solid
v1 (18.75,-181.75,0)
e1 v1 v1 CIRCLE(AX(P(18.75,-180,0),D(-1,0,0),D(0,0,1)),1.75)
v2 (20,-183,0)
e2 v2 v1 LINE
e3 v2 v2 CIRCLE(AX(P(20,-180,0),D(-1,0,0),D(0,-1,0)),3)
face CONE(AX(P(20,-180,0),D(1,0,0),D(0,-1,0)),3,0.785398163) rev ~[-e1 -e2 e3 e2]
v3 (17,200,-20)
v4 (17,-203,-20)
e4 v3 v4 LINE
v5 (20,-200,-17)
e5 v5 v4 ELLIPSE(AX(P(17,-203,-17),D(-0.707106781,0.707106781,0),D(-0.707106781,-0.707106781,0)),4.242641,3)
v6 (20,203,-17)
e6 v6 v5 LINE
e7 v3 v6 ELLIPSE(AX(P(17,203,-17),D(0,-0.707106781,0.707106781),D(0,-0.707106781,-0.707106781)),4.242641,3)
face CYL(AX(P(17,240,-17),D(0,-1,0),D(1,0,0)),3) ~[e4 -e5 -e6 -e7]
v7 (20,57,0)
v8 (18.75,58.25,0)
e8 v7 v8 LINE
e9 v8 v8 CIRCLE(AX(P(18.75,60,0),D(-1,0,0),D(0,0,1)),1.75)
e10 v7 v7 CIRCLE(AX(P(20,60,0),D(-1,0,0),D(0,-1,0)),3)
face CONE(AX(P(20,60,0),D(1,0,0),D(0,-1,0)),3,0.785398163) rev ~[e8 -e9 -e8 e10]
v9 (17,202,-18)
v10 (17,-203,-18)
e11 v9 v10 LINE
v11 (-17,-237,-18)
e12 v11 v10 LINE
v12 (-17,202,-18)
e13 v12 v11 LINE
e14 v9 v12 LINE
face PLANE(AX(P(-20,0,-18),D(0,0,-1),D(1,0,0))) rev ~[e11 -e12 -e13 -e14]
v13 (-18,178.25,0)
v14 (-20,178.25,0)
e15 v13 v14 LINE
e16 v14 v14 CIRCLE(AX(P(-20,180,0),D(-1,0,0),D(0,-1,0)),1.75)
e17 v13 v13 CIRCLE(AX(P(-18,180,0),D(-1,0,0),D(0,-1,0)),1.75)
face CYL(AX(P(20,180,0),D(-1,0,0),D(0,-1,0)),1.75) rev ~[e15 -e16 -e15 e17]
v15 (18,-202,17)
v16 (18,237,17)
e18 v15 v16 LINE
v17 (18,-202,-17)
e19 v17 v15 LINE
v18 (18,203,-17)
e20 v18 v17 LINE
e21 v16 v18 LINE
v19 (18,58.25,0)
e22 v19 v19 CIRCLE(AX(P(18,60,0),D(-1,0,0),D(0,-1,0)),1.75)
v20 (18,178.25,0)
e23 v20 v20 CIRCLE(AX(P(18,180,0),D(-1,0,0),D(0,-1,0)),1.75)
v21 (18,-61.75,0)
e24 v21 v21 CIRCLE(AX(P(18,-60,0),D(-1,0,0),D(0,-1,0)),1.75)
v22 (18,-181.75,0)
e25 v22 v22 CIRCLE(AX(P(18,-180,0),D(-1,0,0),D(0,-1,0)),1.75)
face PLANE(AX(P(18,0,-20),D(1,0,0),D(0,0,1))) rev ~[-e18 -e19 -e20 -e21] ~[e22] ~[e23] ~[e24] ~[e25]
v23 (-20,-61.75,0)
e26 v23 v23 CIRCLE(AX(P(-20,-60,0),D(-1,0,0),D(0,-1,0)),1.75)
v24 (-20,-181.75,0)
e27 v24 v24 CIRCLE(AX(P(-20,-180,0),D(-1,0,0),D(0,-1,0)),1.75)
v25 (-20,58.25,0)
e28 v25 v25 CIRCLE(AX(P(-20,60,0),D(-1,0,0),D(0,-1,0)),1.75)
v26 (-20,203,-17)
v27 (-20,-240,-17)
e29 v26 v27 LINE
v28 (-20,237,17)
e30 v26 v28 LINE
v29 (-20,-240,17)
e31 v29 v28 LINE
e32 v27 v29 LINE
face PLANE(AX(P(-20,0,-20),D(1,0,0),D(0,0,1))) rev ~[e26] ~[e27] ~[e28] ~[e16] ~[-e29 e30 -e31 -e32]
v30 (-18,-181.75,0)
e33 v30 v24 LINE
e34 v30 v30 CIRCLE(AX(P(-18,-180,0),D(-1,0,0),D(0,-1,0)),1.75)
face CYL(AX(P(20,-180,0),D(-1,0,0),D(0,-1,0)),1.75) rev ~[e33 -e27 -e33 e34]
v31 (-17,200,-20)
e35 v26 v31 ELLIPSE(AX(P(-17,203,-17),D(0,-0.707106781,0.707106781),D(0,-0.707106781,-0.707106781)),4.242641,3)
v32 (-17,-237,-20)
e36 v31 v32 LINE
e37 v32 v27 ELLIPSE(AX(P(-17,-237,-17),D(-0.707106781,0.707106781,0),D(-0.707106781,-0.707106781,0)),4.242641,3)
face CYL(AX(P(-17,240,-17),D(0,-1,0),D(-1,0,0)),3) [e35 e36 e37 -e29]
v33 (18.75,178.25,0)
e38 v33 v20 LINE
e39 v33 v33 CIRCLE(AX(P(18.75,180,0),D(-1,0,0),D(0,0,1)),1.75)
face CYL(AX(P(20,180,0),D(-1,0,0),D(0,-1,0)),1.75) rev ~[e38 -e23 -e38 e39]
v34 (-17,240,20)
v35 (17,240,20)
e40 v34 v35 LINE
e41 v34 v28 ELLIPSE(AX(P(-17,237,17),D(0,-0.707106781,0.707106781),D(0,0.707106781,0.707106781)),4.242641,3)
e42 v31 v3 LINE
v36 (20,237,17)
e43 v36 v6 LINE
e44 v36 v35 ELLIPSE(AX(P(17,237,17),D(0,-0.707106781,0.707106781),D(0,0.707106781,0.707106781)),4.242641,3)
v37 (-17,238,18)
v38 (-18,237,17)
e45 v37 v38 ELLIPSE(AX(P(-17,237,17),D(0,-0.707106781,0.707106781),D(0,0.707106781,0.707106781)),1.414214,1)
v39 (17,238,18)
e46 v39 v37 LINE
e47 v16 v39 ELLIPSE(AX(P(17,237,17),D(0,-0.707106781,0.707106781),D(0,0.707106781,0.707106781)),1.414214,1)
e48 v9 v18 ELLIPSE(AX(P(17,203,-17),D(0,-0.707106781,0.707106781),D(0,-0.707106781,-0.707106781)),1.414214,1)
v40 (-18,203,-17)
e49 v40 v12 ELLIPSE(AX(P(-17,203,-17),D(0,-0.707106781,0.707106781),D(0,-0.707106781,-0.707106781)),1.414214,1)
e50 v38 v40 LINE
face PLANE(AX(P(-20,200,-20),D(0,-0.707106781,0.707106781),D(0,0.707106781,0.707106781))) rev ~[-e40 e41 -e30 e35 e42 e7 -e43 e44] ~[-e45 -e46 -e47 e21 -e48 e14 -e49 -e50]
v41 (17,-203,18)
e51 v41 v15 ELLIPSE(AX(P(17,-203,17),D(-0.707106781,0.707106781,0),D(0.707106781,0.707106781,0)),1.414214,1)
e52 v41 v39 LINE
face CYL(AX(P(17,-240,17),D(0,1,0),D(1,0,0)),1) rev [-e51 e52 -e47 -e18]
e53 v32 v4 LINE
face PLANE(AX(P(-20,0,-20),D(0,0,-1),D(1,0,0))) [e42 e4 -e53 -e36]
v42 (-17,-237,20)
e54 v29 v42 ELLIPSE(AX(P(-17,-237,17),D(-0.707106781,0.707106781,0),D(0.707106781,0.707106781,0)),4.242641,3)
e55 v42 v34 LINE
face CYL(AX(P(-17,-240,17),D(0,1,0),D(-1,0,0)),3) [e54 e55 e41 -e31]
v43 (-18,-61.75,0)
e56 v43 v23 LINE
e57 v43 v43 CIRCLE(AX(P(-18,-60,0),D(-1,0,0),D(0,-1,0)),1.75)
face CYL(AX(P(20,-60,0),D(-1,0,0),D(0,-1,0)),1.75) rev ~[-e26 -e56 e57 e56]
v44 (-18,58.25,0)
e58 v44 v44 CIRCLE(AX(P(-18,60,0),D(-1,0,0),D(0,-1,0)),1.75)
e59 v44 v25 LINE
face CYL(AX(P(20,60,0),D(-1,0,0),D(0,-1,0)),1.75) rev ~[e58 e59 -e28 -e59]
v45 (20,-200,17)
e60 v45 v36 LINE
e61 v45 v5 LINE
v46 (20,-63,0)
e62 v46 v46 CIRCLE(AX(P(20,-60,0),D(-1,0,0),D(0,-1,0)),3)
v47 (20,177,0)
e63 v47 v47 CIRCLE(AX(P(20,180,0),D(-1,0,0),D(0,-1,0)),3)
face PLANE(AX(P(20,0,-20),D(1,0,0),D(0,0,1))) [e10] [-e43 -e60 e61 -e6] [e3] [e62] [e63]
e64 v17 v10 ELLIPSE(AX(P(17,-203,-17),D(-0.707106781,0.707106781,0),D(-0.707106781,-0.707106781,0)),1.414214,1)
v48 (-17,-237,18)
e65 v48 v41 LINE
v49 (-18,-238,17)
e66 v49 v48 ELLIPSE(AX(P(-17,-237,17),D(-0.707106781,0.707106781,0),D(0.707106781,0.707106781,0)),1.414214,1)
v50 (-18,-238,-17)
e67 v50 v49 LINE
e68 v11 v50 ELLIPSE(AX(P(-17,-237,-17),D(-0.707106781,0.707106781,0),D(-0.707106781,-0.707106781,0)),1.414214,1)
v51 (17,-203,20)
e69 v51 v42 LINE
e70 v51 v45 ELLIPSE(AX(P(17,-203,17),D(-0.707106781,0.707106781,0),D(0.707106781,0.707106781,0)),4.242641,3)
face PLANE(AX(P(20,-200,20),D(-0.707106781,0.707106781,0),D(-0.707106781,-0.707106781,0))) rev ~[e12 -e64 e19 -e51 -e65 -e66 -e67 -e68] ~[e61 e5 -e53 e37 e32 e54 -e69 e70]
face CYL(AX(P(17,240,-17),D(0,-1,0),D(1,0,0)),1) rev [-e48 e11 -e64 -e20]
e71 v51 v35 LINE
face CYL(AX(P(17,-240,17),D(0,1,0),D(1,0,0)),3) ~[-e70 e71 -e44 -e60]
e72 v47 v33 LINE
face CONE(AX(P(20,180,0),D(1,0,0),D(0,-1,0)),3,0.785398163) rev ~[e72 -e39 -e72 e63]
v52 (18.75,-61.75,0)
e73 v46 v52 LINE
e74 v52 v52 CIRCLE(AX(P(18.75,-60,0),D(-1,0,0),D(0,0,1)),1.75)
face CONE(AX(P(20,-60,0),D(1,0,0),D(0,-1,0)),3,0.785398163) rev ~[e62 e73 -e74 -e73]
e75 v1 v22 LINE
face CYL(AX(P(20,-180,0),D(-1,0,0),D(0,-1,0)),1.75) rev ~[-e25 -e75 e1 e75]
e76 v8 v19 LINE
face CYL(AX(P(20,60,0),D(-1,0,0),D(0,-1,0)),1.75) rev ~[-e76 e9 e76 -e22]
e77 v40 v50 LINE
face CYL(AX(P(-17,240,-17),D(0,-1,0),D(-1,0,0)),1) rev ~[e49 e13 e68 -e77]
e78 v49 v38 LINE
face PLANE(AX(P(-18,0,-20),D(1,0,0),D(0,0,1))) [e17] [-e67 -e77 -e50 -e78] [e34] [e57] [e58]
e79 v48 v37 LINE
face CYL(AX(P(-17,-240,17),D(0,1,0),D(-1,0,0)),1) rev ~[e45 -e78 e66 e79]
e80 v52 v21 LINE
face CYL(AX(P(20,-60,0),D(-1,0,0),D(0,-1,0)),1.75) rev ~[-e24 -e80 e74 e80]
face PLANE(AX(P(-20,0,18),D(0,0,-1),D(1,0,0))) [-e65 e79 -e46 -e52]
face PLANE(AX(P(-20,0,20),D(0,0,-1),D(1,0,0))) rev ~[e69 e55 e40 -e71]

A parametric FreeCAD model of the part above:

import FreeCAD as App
import Part
import Sketcher
from FreeCAD import Vector
Q = App.Units.Quantity


def edges_at(feature, points):
    """Names of the edges that pass closest to the given points."""
    edges = feature.Shape.Edges
    near = lambda p: min(range(len(edges)), key=lambda i: edges[i].distToShape(Part.Vertex(*p))[0])
    return sorted({f"Edge{near(p) + 1}" for p in points})


def faces_at(feature, points):
    """Names of the faces that lie closest to the given points."""
    faces = feature.Shape.Faces
    near = lambda p: min(range(len(faces)), key=lambda i: faces[i].distToShape(Part.Vertex(*p))[0])
    return sorted({f"Face{near(p) + 1}" for p in points})

doc = App.newDocument("Part")
params = doc.addObject("Spreadsheet::Sheet", "Params")
for row, (alias, value) in enumerate([
    ("sketch1_width", "40 mm"),
    ("pad1_length", "480 mm"),
    ("fillet_radius", "3 mm"),
    ("thickness_wall", "2 mm"),
    ("sketch2_width", "40 mm"),
    ("sketch3_width", "40 mm"),
    ("sketch4_diameter", "3.5 mm"),
    ("hole_diameter", "3.5 mm"),
    ("hole_csink_diameter", "6 mm"),
], start=1):
    params.set(f"A{row}", alias)
    params.set(f"B{row}", "=" + value)
    params.setAlias(f"B{row}", alias)

body = doc.addObject("PartDesign::Body", "Body")

# Sketch on XZ plane
sketch1 = doc.addObject("Sketcher::SketchObject", "Sketch")
body.addObject(sketch1)
sketch1.AttachmentSupport = (doc.XZ_Plane, [""])
sketch1.MapMode = "FlatFace"
sketch1.addGeometry([
    Part.LineSegment(Vector(-20, 20, 0), Vector(-20, -20, 0)),
    Part.LineSegment(Vector(-20, -20, 0), Vector(20, -20, 0)),
    Part.LineSegment(Vector(20, -20, 0), Vector(20, 20, 0)),
    Part.LineSegment(Vector(20, 20, 0), Vector(-20, 20, 0)),
], False)
sketch1.addConstraint([
    Sketcher.Constraint("Coincident", 0, 2, 1, 1),
    Sketcher.Constraint("Coincident", 1, 2, 2, 1),
    Sketcher.Constraint("Coincident", 2, 2, 3, 1),
    Sketcher.Constraint("Coincident", 3, 2, 0, 1),
    Sketcher.Constraint("Vertical", 0),
    Sketcher.Constraint("Horizontal", 1),
    Sketcher.Constraint("Vertical", 2),
    Sketcher.Constraint("Horizontal", 3),
    Sketcher.Constraint("Symmetric", 0, 2, 2, 2, -1, 1),
    Sketcher.Constraint("Equal", 3, 0),
    Sketcher.Constraint("DistanceX", 1, 1, 1, 2, Q("40 mm")),
])
sketch1.setExpression("Constraints[10]", "Params.sketch1_width")
pad1 = doc.addObject("PartDesign::Pad", "Pad")
body.addObject(pad1)
pad1.Profile = sketch1
pad1.setExpression("Length", "Params.pad1_length")
pad1.Midplane = True
doc.recompute()

fillet = doc.addObject("PartDesign::Fillet", "Fillet")
body.addObject(fillet)
fillet.Base = (pad1, edges_at(pad1, [
    (20, 0, 20),
    (-20, 0, 20),
    (20, 0, -20),
    (-20, 0, -20),
]))
fillet.setExpression("Radius", "Params.fillet_radius")
doc.recompute()

thickness = doc.addObject("PartDesign::Thickness", "Thickness")
body.addObject(thickness)
thickness.Base = (fillet, faces_at(fillet, [(0, -240, 0), (0, 240, 0)]))
thickness.setExpression("Value", "Params.thickness_wall")
thickness.Reversed = True
thickness.Join = "Arc"

# Sketch on YZ plane
sketch2 = doc.addObject("Sketcher::SketchObject", "Sketch001")
body.addObject(sketch2)
sketch2.AttachmentSupport = (doc.YZ_Plane, [""])
sketch2.MapMode = "FlatFace"
sketch2.AttachmentOffset = App.Placement(Vector(0, 0, -20), App.Rotation())
sketch2.addGeometry([
    Part.LineSegment(Vector(240, 20, 0), Vector(240, -20, 0)),
    Part.LineSegment(Vector(240, -20, 0), Vector(200, -20, 0)),
    Part.LineSegment(Vector(200, -20, 0), Vector(240, 20, 0)),
], False)
sketch2.addConstraint([
    Sketcher.Constraint("Coincident", 0, 2, 1, 1),
    Sketcher.Constraint("Coincident", 1, 2, 2, 1),
    Sketcher.Constraint("Coincident", 2, 2, 0, 1),
    Sketcher.Constraint("Vertical", 0),
    Sketcher.Constraint("Horizontal", 1),
    Sketcher.Constraint("Equal", 1, 0),
    Sketcher.Constraint("DistanceX", 1, 2, 1, 1, Q("40 mm")),
    Sketcher.Constraint("DistanceX", -1, 1, 0, 2, Q("240 mm")),
    Sketcher.Constraint("DistanceY", 0, 2, -1, 1, Q("20 mm")),
])
sketch2.setExpression("Constraints[6]", "Params.sketch2_width")
pocket1 = doc.addObject("PartDesign::Pocket", "Pocket")
body.addObject(pocket1)
pocket1.Profile = sketch2
pocket1.Type = "ThroughAll"
pocket1.Reversed = True

# Sketch on XY plane
sketch3 = doc.addObject("Sketcher::SketchObject", "Sketch002")
body.addObject(sketch3)
sketch3.AttachmentSupport = (doc.XY_Plane, [""])
sketch3.MapMode = "FlatFace"
sketch3.AttachmentOffset = App.Placement(Vector(0, 0, 20), App.Rotation())
sketch3.addGeometry([
    Part.LineSegment(Vector(20, -240, 0), Vector(20, -200, 0)),
    Part.LineSegment(Vector(20, -200, 0), Vector(-20, -240, 0)),
    Part.LineSegment(Vector(-20, -240, 0), Vector(20, -240, 0)),
], False)
sketch3.addConstraint([
    Sketcher.Constraint("Coincident", 0, 2, 1, 1),
    Sketcher.Constraint("Coincident", 1, 2, 2, 1),
    Sketcher.Constraint("Coincident", 2, 2, 0, 1),
    Sketcher.Constraint("Vertical", 0),
    Sketcher.Constraint("Horizontal", 2),
    Sketcher.Constraint("Equal", 2, 0),
    Sketcher.Constraint("DistanceX", 2, 1, 2, 2, Q("40 mm")),
    Sketcher.Constraint("DistanceX", -1, 1, 0, 2, Q("20 mm")),
    Sketcher.Constraint("DistanceY", 0, 2, -1, 1, Q("200 mm")),
])
sketch3.setExpression("Constraints[6]", "Params.sketch3_width")
pocket2 = doc.addObject("PartDesign::Pocket", "Pocket001")
body.addObject(pocket2)
pocket2.Profile = sketch3
pocket2.Type = "ThroughAll"

# Sketch on YZ plane
sketch4 = doc.addObject("Sketcher::SketchObject", "Sketch003")
body.addObject(sketch4)
sketch4.AttachmentSupport = (doc.YZ_Plane, [""])
sketch4.MapMode = "FlatFace"
sketch4.AttachmentOffset = App.Placement(Vector(0, 0, 20), App.Rotation())
sketch4.addGeometry([
    Part.Circle(Vector(180, 0, 0), Vector(0, 0, 1), 1.75),
    Part.Circle(Vector(60, 0, 0), Vector(0, 0, 1), 1.75),
    Part.Circle(Vector(-60, 0, 0), Vector(0, 0, 1), 1.75),
    Part.Circle(Vector(-180, 0, 0), Vector(0, 0, 1), 1.75),
], False)
sketch4.addConstraint([
    Sketcher.Constraint("Equal", 0, 1),
    Sketcher.Constraint("Equal", 1, 2),
    Sketcher.Constraint("Equal", 2, 3),
    Sketcher.Constraint("Symmetric", 1, 3, 2, 3, -1, 1),
    Sketcher.Constraint("Symmetric", 0, 3, 3, 3, -1, 1),
    Sketcher.Constraint("PointOnObject", 0, 3, -1),
    Sketcher.Constraint("PointOnObject", 1, 3, -1),
    Sketcher.Constraint("Diameter", 0, Q("3.5 mm")),
    Sketcher.Constraint("DistanceX", -1, 1, 0, 3, Q("180 mm")),
    Sketcher.Constraint("DistanceX", -1, 1, 1, 3, Q("60 mm")),
])
sketch4.setExpression("Constraints[7]", "Params.sketch4_diameter")
doc.recompute()
hole = doc.addObject("PartDesign::Hole", "Hole")
body.addObject(hole)
hole.Profile = sketch4
hole.ThreadType = "None"
hole.setExpression("Diameter", "Params.hole_diameter")
hole.DepthType = "ThroughAll"
hole.HoleCutType = "Countersink"
hole.setExpression("HoleCutDiameter", "Params.hole_csink_diameter")
hole.HoleCutCountersinkAngle = 90

doc.recompute()
